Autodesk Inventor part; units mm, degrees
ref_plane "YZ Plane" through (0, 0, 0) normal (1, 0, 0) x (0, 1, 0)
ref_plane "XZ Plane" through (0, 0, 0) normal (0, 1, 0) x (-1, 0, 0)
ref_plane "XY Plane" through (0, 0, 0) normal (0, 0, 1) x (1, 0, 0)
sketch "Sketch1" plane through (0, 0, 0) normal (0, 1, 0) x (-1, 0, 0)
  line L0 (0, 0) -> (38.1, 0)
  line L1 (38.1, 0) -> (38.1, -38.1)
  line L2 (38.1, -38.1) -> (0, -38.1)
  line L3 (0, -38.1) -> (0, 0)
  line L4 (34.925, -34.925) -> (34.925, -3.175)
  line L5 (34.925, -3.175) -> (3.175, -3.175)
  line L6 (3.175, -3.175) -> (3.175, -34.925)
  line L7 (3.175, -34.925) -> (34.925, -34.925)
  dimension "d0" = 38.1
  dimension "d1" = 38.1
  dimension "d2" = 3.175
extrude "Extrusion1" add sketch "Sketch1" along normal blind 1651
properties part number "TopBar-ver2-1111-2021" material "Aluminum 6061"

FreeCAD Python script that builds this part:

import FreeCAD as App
import Part
import Sketcher
Q = App.Units.Quantity

doc = App.newDocument("Part")
body = doc.addObject("PartDesign::Body", "Body")

# Sketch on XZ plane
sketch1 = body.newObject("Sketcher::SketchObject", "Sketch")
sketch1.AttachmentSupport = (doc.getObject("XZ_Plane"), [""])
sketch1.MapMode = "FlatFace"
sketch1.addGeometry(Part.LineSegment(App.Vector(-38, 0, 0), App.Vector(0, 0, 0)), False)
sketch1.addGeometry(Part.LineSegment(App.Vector(0, 0, 0), App.Vector(0, -38, 0)), False)
sketch1.addGeometry(Part.LineSegment(App.Vector(0, -38, 0), App.Vector(-38, -38, 0)), False)
sketch1.addGeometry(Part.LineSegment(App.Vector(-38, -38, 0), App.Vector(-38, 0, 0)), False)
sketch1.addGeometry(Part.LineSegment(App.Vector(-35, -3, 0), App.Vector(-35, -35, 0)), False)
sketch1.addGeometry(Part.LineSegment(App.Vector(-35, -35, 0), App.Vector(-3, -35, 0)), False)
sketch1.addGeometry(Part.LineSegment(App.Vector(-3, -35, 0), App.Vector(-3, -3, 0)), False)
sketch1.addGeometry(Part.LineSegment(App.Vector(-3, -3, 0), App.Vector(-35, -3, 0)), False)
sketch1.addConstraint(Sketcher.Constraint("Coincident", 0, 2, 1, 1))
sketch1.addConstraint(Sketcher.Constraint("Coincident", 1, 2, 2, 1))
sketch1.addConstraint(Sketcher.Constraint("Coincident", 2, 2, 3, 1))
sketch1.addConstraint(Sketcher.Constraint("Coincident", 3, 2, 0, 1))
sketch1.addConstraint(Sketcher.Constraint("Coincident", 4, 2, 5, 1))
sketch1.addConstraint(Sketcher.Constraint("Coincident", 5, 2, 6, 1))
sketch1.addConstraint(Sketcher.Constraint("Coincident", 6, 2, 7, 1))
sketch1.addConstraint(Sketcher.Constraint("Coincident", 7, 2, 4, 1))
sketch1.addConstraint(Sketcher.Constraint("Horizontal", 0))
sketch1.addConstraint(Sketcher.Constraint("Vertical", 1))
sketch1.addConstraint(Sketcher.Constraint("Horizontal", 2))
sketch1.addConstraint(Sketcher.Constraint("Vertical", 3))
sketch1.addConstraint(Sketcher.Constraint("Vertical", 4))
sketch1.addConstraint(Sketcher.Constraint("Horizontal", 5))
sketch1.addConstraint(Sketcher.Constraint("Vertical", 6))
sketch1.addConstraint(Sketcher.Constraint("Horizontal", 7))
sketch1.addConstraint(Sketcher.Constraint("Coincident", 0, 2, -1, 1))
sketch1.addConstraint(Sketcher.Constraint("Equal", 2, 1))
sketch1.addConstraint(Sketcher.Constraint("Equal", 7, 4))
sketch1.addConstraint(Sketcher.Constraint("DistanceX", 0, 1, 0, 2, Q("1.5 in")))
sketch1.addConstraint(Sketcher.Constraint("DistanceX", 5, 2, -1, 1, Q("0.125 in")))
sketch1.addConstraint(Sketcher.Constraint("DistanceY", 6, 2, -1, 1, Q("0.125 in")))
sketch1.addConstraint(Sketcher.Constraint("DistanceX", 2, 2, 4, 2, Q("0.125 in")))
pad1 = body.newObject("PartDesign::Pad", "Pad")
pad1.Profile = sketch1
pad1.Length = Q("65 in")
pad1.Reversed = True

doc.recompute()
